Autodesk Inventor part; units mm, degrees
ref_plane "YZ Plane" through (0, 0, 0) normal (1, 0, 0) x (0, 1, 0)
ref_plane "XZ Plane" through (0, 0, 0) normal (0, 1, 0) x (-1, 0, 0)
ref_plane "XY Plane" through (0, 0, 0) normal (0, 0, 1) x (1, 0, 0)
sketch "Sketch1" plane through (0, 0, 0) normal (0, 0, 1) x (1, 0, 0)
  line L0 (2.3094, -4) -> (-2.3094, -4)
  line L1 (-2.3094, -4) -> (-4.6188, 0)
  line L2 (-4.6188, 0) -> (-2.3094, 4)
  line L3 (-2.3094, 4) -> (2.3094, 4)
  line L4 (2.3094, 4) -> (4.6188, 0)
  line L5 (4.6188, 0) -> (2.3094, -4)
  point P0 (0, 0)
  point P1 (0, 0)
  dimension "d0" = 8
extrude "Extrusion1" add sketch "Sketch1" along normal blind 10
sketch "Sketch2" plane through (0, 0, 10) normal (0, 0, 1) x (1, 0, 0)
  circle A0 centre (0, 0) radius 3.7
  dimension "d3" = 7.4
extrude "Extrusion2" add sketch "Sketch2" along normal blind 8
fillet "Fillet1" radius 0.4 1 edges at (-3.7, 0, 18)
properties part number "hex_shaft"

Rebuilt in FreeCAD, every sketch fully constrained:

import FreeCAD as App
import Part
import Sketcher
Q = App.Units.Quantity


def edges_at(feature, points):
    """Names of the edges that pass closest to the given points."""
    edges = feature.Shape.Edges
    near = lambda p: min(range(len(edges)), key=lambda i: edges[i].distToShape(Part.Vertex(*p))[0])
    return sorted({f"Edge{near(p) + 1}" for p in points})


def add_polygon(sketch, points):
    """Adds a closed chain of lines whose ends are joined by coincident constraints."""
    first, n = sketch.GeometryCount, len(points)
    for a, b in zip(points, points[1:] + points[:1]):
        sketch.addGeometry(Part.LineSegment(App.Vector(*a, 0), App.Vector(*b, 0)), False)
    for i in range(n):
        sketch.addConstraint(Sketcher.Constraint("Coincident", first + i, 2, first + (i + 1) % n, 1))

doc = App.newDocument("Part")
params = doc.addObject("Spreadsheet::Sheet", "Params")
for row, (alias, value) in enumerate([
    ("pad1_length", "10 mm"),
    ("sketch2_diameter", "7.4 mm"),
    ("pad2_length", "8 mm"),
    ("fillet_radius", "0.4 mm"),
], start=1):
    params.set(f"A{row}", alias)
    params.set(f"B{row}", "=" + value)
    params.setAlias(f"B{row}", alias)

body = doc.addObject("PartDesign::Body", "Body")

sketch1 = body.newObject("Sketcher::SketchObject", "Sketch")
sketch1.AttachmentSupport = (doc.getObject("XY_Plane"), [""])
sketch1.MapMode = "FlatFace"
add_polygon(sketch1, [(-2.3, -4), (2.3, -4), (4.6, 0), (2.3, 4), (-2.3, 4), (-4.6, 0)])
sketch1.addConstraint([
    Sketcher.Constraint("Horizontal", 0),
    Sketcher.Constraint("Horizontal", 3),
    Sketcher.Constraint("Symmetric", 0, 2, 3, 2, -1, 1),
    Sketcher.Constraint("Symmetric", 1, 2, 4, 2, -1, 1),
    Sketcher.Constraint("PointOnObject", 1, 2, -1),
    Sketcher.Constraint("Parallel", 2, 5),
    Sketcher.Constraint("Vertical", 0, 2, 2, 2),
    Sketcher.Constraint("DistanceY", 0, 2, 2, 2, 8.0),
    Sketcher.Constraint("Angle", 1, Q("60 deg")),
    Sketcher.Constraint("DistanceX", 0, 1, 0, 2, 4.6188),
])
pad1 = body.newObject("PartDesign::Pad", "Pad")
pad1.Profile = sketch1
pad1.setExpression("Length", "Params.pad1_length")

sketch2 = body.newObject("Sketcher::SketchObject", "Sketch001")
sketch2.AttachmentSupport = (doc.getObject("XY_Plane"), [""])
sketch2.MapMode = "FlatFace"
sketch2.AttachmentOffset = App.Placement(App.Vector(0, 0, 10), App.Rotation())
sketch2.addGeometry(Part.Circle(App.Vector(0, 0, 0), App.Vector(0, 0, 1), 3.7), False)
sketch2.addConstraint([
    Sketcher.Constraint("Coincident", 0, 3, -1, 1),
    Sketcher.Constraint("Diameter", 0, 7.4),
])
sketch2.setExpression("Constraints[1]", "Params.sketch2_diameter")
pad2 = body.newObject("PartDesign::Pad", "Pad001")
pad2.Profile = sketch2
pad2.setExpression("Length", "Params.pad2_length")
doc.recompute()

fillet = body.newObject("PartDesign::Fillet", "Fillet")
fillet.Base = (pad2, edges_at(pad2, [(-3.7, 0, 18)]))
fillet.setExpression("Radius", "Params.fillet_radius")

doc.recompute()
